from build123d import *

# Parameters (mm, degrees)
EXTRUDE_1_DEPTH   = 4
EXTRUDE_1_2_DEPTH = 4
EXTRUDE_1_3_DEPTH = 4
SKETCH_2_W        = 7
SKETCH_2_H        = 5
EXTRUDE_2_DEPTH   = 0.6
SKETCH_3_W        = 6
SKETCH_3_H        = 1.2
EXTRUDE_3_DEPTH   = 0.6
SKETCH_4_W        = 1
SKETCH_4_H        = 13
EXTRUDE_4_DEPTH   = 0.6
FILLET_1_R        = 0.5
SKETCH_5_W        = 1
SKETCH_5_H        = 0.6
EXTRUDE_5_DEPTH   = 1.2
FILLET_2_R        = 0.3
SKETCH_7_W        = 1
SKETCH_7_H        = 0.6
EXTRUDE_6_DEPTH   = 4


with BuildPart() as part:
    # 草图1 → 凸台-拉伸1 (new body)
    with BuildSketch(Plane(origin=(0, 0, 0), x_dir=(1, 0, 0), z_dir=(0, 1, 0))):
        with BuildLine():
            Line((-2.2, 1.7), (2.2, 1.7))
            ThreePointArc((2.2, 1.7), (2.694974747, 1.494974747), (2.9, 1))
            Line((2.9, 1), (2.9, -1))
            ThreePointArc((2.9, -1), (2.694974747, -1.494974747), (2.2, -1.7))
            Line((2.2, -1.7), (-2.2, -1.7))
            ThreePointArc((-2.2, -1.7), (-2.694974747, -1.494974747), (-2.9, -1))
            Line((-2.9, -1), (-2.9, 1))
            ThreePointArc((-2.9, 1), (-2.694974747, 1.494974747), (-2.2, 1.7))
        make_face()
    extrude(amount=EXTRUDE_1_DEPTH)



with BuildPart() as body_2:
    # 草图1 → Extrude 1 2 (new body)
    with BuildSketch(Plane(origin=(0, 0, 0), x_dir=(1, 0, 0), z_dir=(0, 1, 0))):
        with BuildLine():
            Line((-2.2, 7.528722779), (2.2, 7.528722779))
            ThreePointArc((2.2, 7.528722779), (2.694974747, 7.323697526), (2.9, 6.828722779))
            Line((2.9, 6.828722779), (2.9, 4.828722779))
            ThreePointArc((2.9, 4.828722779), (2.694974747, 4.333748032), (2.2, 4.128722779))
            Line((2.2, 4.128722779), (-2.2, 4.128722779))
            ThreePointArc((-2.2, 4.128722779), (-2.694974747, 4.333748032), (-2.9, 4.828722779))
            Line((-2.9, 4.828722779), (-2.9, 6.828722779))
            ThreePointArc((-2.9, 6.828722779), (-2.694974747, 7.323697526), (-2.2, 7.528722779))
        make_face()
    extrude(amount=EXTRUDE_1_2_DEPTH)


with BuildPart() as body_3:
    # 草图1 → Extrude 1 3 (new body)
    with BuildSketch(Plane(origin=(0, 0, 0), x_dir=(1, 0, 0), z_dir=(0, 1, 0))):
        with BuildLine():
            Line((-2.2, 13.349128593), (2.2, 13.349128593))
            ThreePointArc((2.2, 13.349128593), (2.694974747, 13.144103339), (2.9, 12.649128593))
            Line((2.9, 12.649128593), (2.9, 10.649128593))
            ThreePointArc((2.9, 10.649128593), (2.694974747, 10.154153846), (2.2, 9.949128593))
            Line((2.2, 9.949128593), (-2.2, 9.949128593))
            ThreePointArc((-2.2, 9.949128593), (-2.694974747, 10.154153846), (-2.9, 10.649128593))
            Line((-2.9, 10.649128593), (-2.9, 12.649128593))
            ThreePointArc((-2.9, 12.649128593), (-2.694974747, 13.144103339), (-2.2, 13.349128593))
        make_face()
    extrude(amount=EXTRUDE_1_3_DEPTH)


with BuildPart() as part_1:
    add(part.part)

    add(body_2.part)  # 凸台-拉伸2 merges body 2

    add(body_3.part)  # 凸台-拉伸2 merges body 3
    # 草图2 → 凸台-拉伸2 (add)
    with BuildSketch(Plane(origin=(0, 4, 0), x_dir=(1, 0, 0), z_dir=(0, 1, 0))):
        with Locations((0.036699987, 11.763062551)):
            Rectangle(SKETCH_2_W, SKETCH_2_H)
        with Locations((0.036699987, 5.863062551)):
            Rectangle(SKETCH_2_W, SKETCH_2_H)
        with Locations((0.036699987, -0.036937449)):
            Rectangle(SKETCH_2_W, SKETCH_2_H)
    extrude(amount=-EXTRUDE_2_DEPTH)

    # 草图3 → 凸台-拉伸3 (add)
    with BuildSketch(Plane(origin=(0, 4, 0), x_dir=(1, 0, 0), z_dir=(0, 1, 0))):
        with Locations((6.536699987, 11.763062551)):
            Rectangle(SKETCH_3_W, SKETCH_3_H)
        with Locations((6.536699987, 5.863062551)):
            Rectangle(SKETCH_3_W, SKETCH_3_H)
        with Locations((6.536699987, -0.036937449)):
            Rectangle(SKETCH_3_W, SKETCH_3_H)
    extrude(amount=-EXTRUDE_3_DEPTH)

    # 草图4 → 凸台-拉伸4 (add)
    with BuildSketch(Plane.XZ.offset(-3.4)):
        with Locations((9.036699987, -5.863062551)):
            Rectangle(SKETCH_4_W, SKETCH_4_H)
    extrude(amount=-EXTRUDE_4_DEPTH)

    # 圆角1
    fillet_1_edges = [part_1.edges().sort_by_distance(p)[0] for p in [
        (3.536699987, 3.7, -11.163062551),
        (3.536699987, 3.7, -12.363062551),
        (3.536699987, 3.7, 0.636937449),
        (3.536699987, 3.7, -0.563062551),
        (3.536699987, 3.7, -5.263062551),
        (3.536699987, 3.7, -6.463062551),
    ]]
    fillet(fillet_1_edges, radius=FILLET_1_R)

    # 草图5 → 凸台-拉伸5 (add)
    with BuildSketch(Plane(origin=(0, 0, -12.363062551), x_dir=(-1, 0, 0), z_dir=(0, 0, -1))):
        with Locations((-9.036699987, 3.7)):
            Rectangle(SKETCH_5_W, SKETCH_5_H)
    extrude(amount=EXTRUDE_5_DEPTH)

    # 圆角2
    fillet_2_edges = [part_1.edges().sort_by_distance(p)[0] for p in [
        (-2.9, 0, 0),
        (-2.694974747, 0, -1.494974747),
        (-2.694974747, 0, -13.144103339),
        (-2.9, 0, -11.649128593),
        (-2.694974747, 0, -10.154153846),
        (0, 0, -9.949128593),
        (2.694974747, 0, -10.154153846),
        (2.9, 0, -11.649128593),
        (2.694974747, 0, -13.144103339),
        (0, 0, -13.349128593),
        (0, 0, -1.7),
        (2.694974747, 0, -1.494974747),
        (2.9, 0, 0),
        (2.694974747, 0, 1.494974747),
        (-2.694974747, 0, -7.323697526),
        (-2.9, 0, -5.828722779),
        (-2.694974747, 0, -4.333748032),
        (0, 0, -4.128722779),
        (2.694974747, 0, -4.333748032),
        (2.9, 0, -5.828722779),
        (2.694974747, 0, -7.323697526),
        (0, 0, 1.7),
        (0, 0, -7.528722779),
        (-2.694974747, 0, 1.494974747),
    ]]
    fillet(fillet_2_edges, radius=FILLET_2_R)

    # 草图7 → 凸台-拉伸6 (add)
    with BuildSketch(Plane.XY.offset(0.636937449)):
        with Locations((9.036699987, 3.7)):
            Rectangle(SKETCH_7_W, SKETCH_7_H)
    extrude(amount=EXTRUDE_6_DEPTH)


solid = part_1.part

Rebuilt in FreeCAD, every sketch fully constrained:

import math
import FreeCAD as App
import Part
import Sketcher
Q = App.Units.Quantity


def edges_at(feature, points):
    """Names of the edges that pass closest to the given points."""
    edges = feature.Shape.Edges
    near = lambda p: min(range(len(edges)), key=lambda i: edges[i].distToShape(Part.Vertex(*p))[0])
    return sorted({f"Edge{near(p) + 1}" for p in points})


def add_polygon(sketch, points):
    """Adds a closed chain of lines whose ends are joined by coincident constraints."""
    first, n = sketch.GeometryCount, len(points)
    for a, b in zip(points, points[1:] + points[:1]):
        sketch.addGeometry(Part.LineSegment(App.Vector(*a, 0), App.Vector(*b, 0)), False)
    for i in range(n):
        sketch.addConstraint(Sketcher.Constraint("Coincident", first + i, 2, first + (i + 1) % n, 1))

doc = App.newDocument("Part")
body = doc.addObject("PartDesign::Body", "Body")

# Sketch on XZ plane
sketch1 = body.newObject("Sketcher::SketchObject", "Sketch")
sketch1.AttachmentSupport = (doc.getObject("XZ_Plane"), [""])
sketch1.MapMode = "FlatFace"
sketch1.addGeometry([
    Part.LineSegment(App.Vector(2.2, -1.7, 0), App.Vector(-2.2, -1.7, 0)),  # 0
    Part.ArcOfCircle(Part.Circle(App.Vector(-2.2, -1, 0), App.Vector(0, 0, 1), 0.7), math.radians(180), math.radians(270)),  # 1
    Part.LineSegment(App.Vector(-2.9, -1, 0), App.Vector(-2.9, 1, 0)),  # 2
    Part.ArcOfCircle(Part.Circle(App.Vector(-2.2, 1, 0), App.Vector(0, 0, 1), 0.7), math.radians(90), math.radians(180)),  # 3
    Part.LineSegment(App.Vector(-2.2, 1.7, 0), App.Vector(2.2, 1.7, 0)),  # 4
    Part.ArcOfCircle(Part.Circle(App.Vector(2.2, 1, 0), App.Vector(0, 0, 1), 0.7), math.radians(0), math.radians(90)),  # 5
    Part.LineSegment(App.Vector(2.9, 1, 0), App.Vector(2.9, -1, 0)),  # 6
    Part.ArcOfCircle(Part.Circle(App.Vector(2.2, -1, 0), App.Vector(0, 0, 1), 0.7), math.radians(-90), math.radians(0)),  # 7
], False)
sketch1.addConstraint([
    Sketcher.Constraint("Tangent", 0, 2, 1, 2),
    Sketcher.Constraint("Tangent", 1, 1, 2, 1),
    Sketcher.Constraint("Tangent", 2, 2, 3, 2),
    Sketcher.Constraint("Tangent", 3, 1, 4, 1),
    Sketcher.Constraint("Tangent", 4, 2, 5, 2),
    Sketcher.Constraint("Tangent", 5, 1, 6, 1),
    Sketcher.Constraint("Tangent", 6, 2, 7, 2),
    Sketcher.Constraint("Tangent", 7, 1, 0, 1),
    Sketcher.Constraint("Horizontal", 0),
    Sketcher.Constraint("Vertical", 2),
    Sketcher.Constraint("Horizontal", 4),
    Sketcher.Constraint("Vertical", 6),
    Sketcher.Constraint("Equal", 1, 3),
    Sketcher.Constraint("Equal", 3, 5),
    Sketcher.Constraint("Equal", 5, 7),
    Sketcher.Constraint("Symmetric", 1, 3, 5, 3, -1, 1),
    Sketcher.Constraint("Radius", 1, Q("0.7 mm")),
    Sketcher.Constraint("DistanceY", 2, 1, 2, 2, Q("2 mm")),
    Sketcher.Constraint("DistanceX", 0, 2, 0, 1, Q("4.4 mm")),
])
pad1 = body.newObject("PartDesign::Pad", "Pad")
pad1.Profile = sketch1
pad1.Length = 4
pad1.Reversed = True
body2 = doc.addObject("PartDesign::Body", "Body001")

# Sketch on XZ plane
sketch2 = body2.newObject("Sketcher::SketchObject", "Sketch001")
sketch2.AttachmentSupport = (doc.getObject("XZ_Plane001"), [""])
sketch2.MapMode = "FlatFace"
sketch2.addGeometry([
    Part.LineSegment(App.Vector(2.2, -7.5, 0), App.Vector(-2.2, -7.5, 0)),  # 0
    Part.ArcOfCircle(Part.Circle(App.Vector(-2.2, -6.8, 0), App.Vector(0, 0, 1), 0.7), math.radians(180), math.radians(270)),  # 1
    Part.LineSegment(App.Vector(-2.9, -6.8, 0), App.Vector(-2.9, -4.8, 0)),  # 2
    Part.ArcOfCircle(Part.Circle(App.Vector(-2.2, -4.8, 0), App.Vector(0, 0, 1), 0.7), math.radians(90), math.radians(180)),  # 3
    Part.LineSegment(App.Vector(-2.2, -4.1, 0), App.Vector(2.2, -4.1, 0)),  # 4
    Part.ArcOfCircle(Part.Circle(App.Vector(2.2, -4.8, 0), App.Vector(0, 0, 1), 0.7), math.radians(0), math.radians(90)),  # 5
    Part.LineSegment(App.Vector(2.9, -4.8, 0), App.Vector(2.9, -6.8, 0)),  # 6
    Part.ArcOfCircle(Part.Circle(App.Vector(2.2, -6.8, 0), App.Vector(0, 0, 1), 0.7), math.radians(-90), math.radians(0)),  # 7
], False)
sketch2.addConstraint([
    Sketcher.Constraint("Tangent", 0, 2, 1, 2),
    Sketcher.Constraint("Tangent", 1, 1, 2, 1),
    Sketcher.Constraint("Tangent", 2, 2, 3, 2),
    Sketcher.Constraint("Tangent", 3, 1, 4, 1),
    Sketcher.Constraint("Tangent", 4, 2, 5, 2),
    Sketcher.Constraint("Tangent", 5, 1, 6, 1),
    Sketcher.Constraint("Tangent", 6, 2, 7, 2),
    Sketcher.Constraint("Tangent", 7, 1, 0, 1),
    Sketcher.Constraint("Horizontal", 0),
    Sketcher.Constraint("Vertical", 2),
    Sketcher.Constraint("Horizontal", 4),
    Sketcher.Constraint("Vertical", 6),
    Sketcher.Constraint("Equal", 1, 3),
    Sketcher.Constraint("Equal", 3, 5),
    Sketcher.Constraint("Equal", 5, 7),
    Sketcher.Constraint("Radius", 1, Q("0.7 mm")),
    Sketcher.Constraint("DistanceY", 2, 1, 2, 2, Q("2 mm")),
    Sketcher.Constraint("DistanceX", 0, 2, 0, 1, Q("4.4 mm")),
    Sketcher.Constraint("DistanceX", 1, 3, -1, 1, Q("2.2 mm")),
    Sketcher.Constraint("DistanceY", 1, 3, -1, 1, Q("6.828723 mm")),
])
pad2 = body2.newObject("PartDesign::Pad", "Pad001")
pad2.Profile = sketch2
pad2.Length = 4
pad2.Reversed = True
body3 = doc.addObject("PartDesign::Body", "Body002")

# Sketch on XZ plane
sketch3 = body3.newObject("Sketcher::SketchObject", "Sketch002")
sketch3.AttachmentSupport = (doc.getObject("XZ_Plane002"), [""])
sketch3.MapMode = "FlatFace"
sketch3.addGeometry([
    Part.LineSegment(App.Vector(2.2, -13.3, 0), App.Vector(-2.2, -13.3, 0)),  # 0
    Part.ArcOfCircle(Part.Circle(App.Vector(-2.2, -12.6, 0), App.Vector(0, 0, 1), 0.7), math.radians(-180), math.radians(-90)),  # 1
    Part.LineSegment(App.Vector(-2.9, -12.6, 0), App.Vector(-2.9, -10.6, 0)),  # 2
    Part.ArcOfCircle(Part.Circle(App.Vector(-2.2, -10.6, 0), App.Vector(0, 0, 1), 0.7), math.radians(90), math.radians(180)),  # 3
    Part.LineSegment(App.Vector(-2.2, -9.9, 0), App.Vector(2.2, -9.9, 0)),  # 4
    Part.ArcOfCircle(Part.Circle(App.Vector(2.2, -10.6, 0), App.Vector(0, 0, 1), 0.7), math.radians(0), math.radians(90)),  # 5
    Part.LineSegment(App.Vector(2.9, -10.6, 0), App.Vector(2.9, -12.6, 0)),  # 6
    Part.ArcOfCircle(Part.Circle(App.Vector(2.2, -12.6, 0), App.Vector(0, 0, 1), 0.7), math.radians(-90), math.radians(0)),  # 7
], False)
sketch3.addConstraint([
    Sketcher.Constraint("Tangent", 0, 2, 1, 2),
    Sketcher.Constraint("Tangent", 1, 1, 2, 1),
    Sketcher.Constraint("Tangent", 2, 2, 3, 2),
    Sketcher.Constraint("Tangent", 3, 1, 4, 1),
    Sketcher.Constraint("Tangent", 4, 2, 5, 2),
    Sketcher.Constraint("Tangent", 5, 1, 6, 1),
    Sketcher.Constraint("Tangent", 6, 2, 7, 2),
    Sketcher.Constraint("Tangent", 7, 1, 0, 1),
    Sketcher.Constraint("Horizontal", 0),
    Sketcher.Constraint("Vertical", 2),
    Sketcher.Constraint("Horizontal", 4),
    Sketcher.Constraint("Vertical", 6),
    Sketcher.Constraint("Equal", 1, 3),
    Sketcher.Constraint("Equal", 3, 5),
    Sketcher.Constraint("Equal", 5, 7),
    Sketcher.Constraint("Radius", 1, Q("0.7 mm")),
    Sketcher.Constraint("DistanceY", 2, 1, 2, 2, Q("2 mm")),
    Sketcher.Constraint("DistanceX", 0, 2, 0, 1, Q("4.4 mm")),
    Sketcher.Constraint("DistanceX", 1, 3, -1, 1, Q("2.2 mm")),
    Sketcher.Constraint("DistanceY", 1, 3, -1, 1, Q("12.649129 mm")),
])
pad3 = body3.newObject("PartDesign::Pad", "Pad002")
pad3.Profile = sketch3
pad3.Length = 4
pad3.Reversed = True
body.AllowCompound = True
doc.recompute()

boolean = body.newObject("PartDesign::Boolean", "Boolean")
boolean.Type = "Fuse"
boolean.addObjects([body2])
doc.recompute()

boolean2 = body.newObject("PartDesign::Boolean", "Boolean001")
boolean2.Type = "Fuse"
boolean2.addObjects([body3])

# Sketch on XZ plane
sketch4 = body.newObject("Sketcher::SketchObject", "Sketch003")
sketch4.AttachmentSupport = (doc.getObject("XZ_Plane"), [""])
sketch4.MapMode = "FlatFace"
sketch4.AttachmentOffset = App.Placement(App.Vector(0, 0, -4), App.Rotation())
add_polygon(sketch4, [(-3, -14), (-3, -9), (4, -9), (4, -14)])  # lines 0-3
add_polygon(sketch4, [(-3, -8), (-3, -3), (4, -3), (4, -8)])  # lines 4-7
add_polygon(sketch4, [(-3, -2), (-3, 3), (4, 3), (4, -2)])  # lines 8-11
sketch4.addConstraint([
    Sketcher.Constraint("Vertical", 0),
    Sketcher.Constraint("Horizontal", 1),
    Sketcher.Constraint("Vertical", 2),
    Sketcher.Constraint("Horizontal", 3),
    Sketcher.Constraint("Vertical", 4),
    Sketcher.Constraint("Horizontal", 5),
    Sketcher.Constraint("Vertical", 6),
    Sketcher.Constraint("Horizontal", 7),
    Sketcher.Constraint("Vertical", 8),
    Sketcher.Constraint("Horizontal", 9),
    Sketcher.Constraint("Vertical", 10),
    Sketcher.Constraint("Horizontal", 11),
    Sketcher.Constraint("Vertical", 3, 2, 4, 2),
    Sketcher.Constraint("Vertical", 2, 2, 5, 2),
    Sketcher.Constraint("Vertical", 7, 2, 8, 2),
    Sketcher.Constraint("Vertical", 6, 2, 9, 2),
    Sketcher.Constraint("Equal", 2, 4),
    Sketcher.Constraint("Equal", 6, 8),
    Sketcher.Constraint("DistanceX", 1, 1, 1, 2, Q("7 mm")),
    Sketcher.Constraint("DistanceY", 0, 1, 0, 2, Q("5 mm")),
    Sketcher.Constraint("DistanceY", 0, 2, 4, 2, Q("5.9 mm")),
    Sketcher.Constraint("DistanceY", 4, 2, 8, 2, Q("5.9 mm")),
    Sketcher.Constraint("DistanceX", 0, 2, -1, 1, Q("3.4633 mm")),
    Sketcher.Constraint("DistanceY", 0, 2, -1, 1, Q("9.263063 mm")),
])
pad4 = body.newObject("PartDesign::Pad", "Pad003")
pad4.Profile = sketch4
pad4.Length = 0.6

# Sketch on XZ plane
sketch5 = body.newObject("Sketcher::SketchObject", "Sketch004")
sketch5.AttachmentSupport = (doc.getObject("XZ_Plane"), [""])
sketch5.MapMode = "FlatFace"
sketch5.AttachmentOffset = App.Placement(App.Vector(0, 0, -4), App.Rotation())
add_polygon(sketch5, [(3.5, -12.4), (3.5, -11.2), (9.5, -11.2), (9.5, -12.4)])  # lines 0-3
add_polygon(sketch5, [(3.5, -6.5), (3.5, -5.3), (9.5, -5.3), (9.5, -6.5)])  # lines 4-7
add_polygon(sketch5, [(3.5, -0.6), (3.5, 0.6), (9.5, 0.6), (9.5, -0.6)])  # lines 8-11
sketch5.addConstraint([
    Sketcher.Constraint("Vertical", 0),
    Sketcher.Constraint("Horizontal", 1),
    Sketcher.Constraint("Vertical", 2),
    Sketcher.Constraint("Horizontal", 3),
    Sketcher.Constraint("Vertical", 4),
    Sketcher.Constraint("Horizontal", 5),
    Sketcher.Constraint("Vertical", 6),
    Sketcher.Constraint("Horizontal", 7),
    Sketcher.Constraint("Vertical", 8),
    Sketcher.Constraint("Horizontal", 9),
    Sketcher.Constraint("Vertical", 10),
    Sketcher.Constraint("Horizontal", 11),
    Sketcher.Constraint("Vertical", 3, 2, 4, 2),
    Sketcher.Constraint("Vertical", 2, 2, 5, 2),
    Sketcher.Constraint("Vertical", 7, 2, 8, 2),
    Sketcher.Constraint("Vertical", 6, 2, 9, 2),
    Sketcher.Constraint("Equal", 2, 4),
    Sketcher.Constraint("Equal", 6, 8),
    Sketcher.Constraint("DistanceX", 1, 1, 1, 2, Q("6 mm")),
    Sketcher.Constraint("DistanceY", 0, 1, 0, 2, Q("1.2 mm")),
    Sketcher.Constraint("DistanceY", 0, 2, 4, 2, Q("5.9 mm")),
    Sketcher.Constraint("DistanceY", 4, 2, 8, 2, Q("5.9 mm")),
    Sketcher.Constraint("DistanceX", -1, 1, 0, 2, Q("3.5367 mm")),
    Sketcher.Constraint("DistanceY", 0, 2, -1, 1, Q("11.163063 mm")),
])
pad5 = body.newObject("PartDesign::Pad", "Pad004")
pad5.Profile = sketch5
pad5.Length = 0.6

# Sketch on XZ plane
sketch6 = body.newObject("Sketcher::SketchObject", "Sketch005")
sketch6.AttachmentSupport = (doc.getObject("XZ_Plane"), [""])
sketch6.MapMode = "FlatFace"
sketch6.AttachmentOffset = App.Placement(App.Vector(0, 0, -3.4), App.Rotation())
add_polygon(sketch6, [(8.5, 0.6), (8.5, -12.4), (9.5, -12.4), (9.5, 0.6)])  # lines 0-3
sketch6.addConstraint([
    Sketcher.Constraint("Vertical", 0),
    Sketcher.Constraint("Horizontal", 1),
    Sketcher.Constraint("Vertical", 2),
    Sketcher.Constraint("Horizontal", 3),
    Sketcher.Constraint("DistanceX", 1, 1, 1, 2, Q("1 mm")),
    Sketcher.Constraint("DistanceY", 0, 2, 0, 1, Q("13 mm")),
    Sketcher.Constraint("DistanceX", -1, 1, 0, 2, Q("8.5367 mm")),
    Sketcher.Constraint("DistanceY", 0, 2, -1, 1, Q("12.363063 mm")),
])
pad6 = body.newObject("PartDesign::Pad", "Pad005")
pad6.Profile = sketch6
pad6.Length = 0.6
pad6.Reversed = True
doc.recompute()

fillet = body.newObject("PartDesign::Fillet", "Fillet")
fillet.Base = (pad6, edges_at(pad6, [
    (3.537, 3.7, -11.163),
    (3.537, 3.7, -12.363),
    (3.537, 3.7, 0.637),
    (3.537, 3.7, -0.563),
    (3.537, 3.7, -5.263),
    (3.537, 3.7, -6.463),
]))
fillet.Radius = 0.5

# Sketch on XY plane
sketch7 = body.newObject("Sketcher::SketchObject", "Sketch006")
sketch7.AttachmentSupport = (doc.getObject("XY_Plane"), [""])
sketch7.MapMode = "FlatFace"
sketch7.AttachmentOffset = App.Placement(App.Vector(0, 0, -12.363063), App.Rotation())
add_polygon(sketch7, [(9.5, 4), (9.5, 3.4), (8.5, 3.4), (8.5, 4)])  # lines 0-3
sketch7.addConstraint([
    Sketcher.Constraint("Vertical", 0),
    Sketcher.Constraint("Horizontal", 1),
    Sketcher.Constraint("Vertical", 2),
    Sketcher.Constraint("Horizontal", 3),
    Sketcher.Constraint("DistanceX", 1, 2, 1, 1, Q("1 mm")),
    Sketcher.Constraint("DistanceY", 0, 2, 0, 1, Q("0.6 mm")),
    Sketcher.Constraint("DistanceY", -1, 1, 2, 2, Q("4 mm")),
    Sketcher.Constraint("DistanceX", -1, 1, 0, 2, Q("9.5367 mm")),
])
pad7 = body.newObject("PartDesign::Pad", "Pad006")
pad7.Profile = sketch7
pad7.Length = 1.2
pad7.Reversed = True
doc.recompute()

fillet2 = body.newObject("PartDesign::Fillet", "Fillet001")
fillet2.Base = (pad7, edges_at(pad7, [
    (-2.9, 0, 0),
    (-2.695, 0, -1.495),
    (-2.695, 0, -13.144),
    (-2.9, 0, -11.649),
    (-2.695, 0, -10.154),
    (0, 0, -9.949),
    (2.695, 0, -10.154),
    (2.9, 0, -11.649),
    (2.695, 0, -13.144),
    (0, 0, -13.349),
    (0, 0, -1.7),
    (2.695, 0, -1.495),
    (2.9, 0, 0),
    (2.695, 0, 1.495),
    (-2.695, 0, -7.324),
    (-2.9, 0, -5.829),
    (-2.695, 0, -4.334),
    (0, 0, -4.129),
    (2.695, 0, -4.334),
    (2.9, 0, -5.829),
    (2.695, 0, -7.324),
    (0, 0, 1.7),
    (0, 0, -7.529),
    (-2.695, 0, 1.495),
]))
fillet2.Radius = 0.3

# Sketch on XY plane
sketch8 = body.newObject("Sketcher::SketchObject", "Sketch007")
sketch8.AttachmentSupport = (doc.getObject("XY_Plane"), [""])
sketch8.MapMode = "FlatFace"
sketch8.AttachmentOffset = App.Placement(App.Vector(0, 0, 0.636937), App.Rotation())
add_polygon(sketch8, [(8.5, 4), (8.5, 3.4), (9.5, 3.4), (9.5, 4)])  # lines 0-3
sketch8.addConstraint([
    Sketcher.Constraint("Vertical", 0),
    Sketcher.Constraint("Horizontal", 1),
    Sketcher.Constraint("Vertical", 2),
    Sketcher.Constraint("Horizontal", 3),
    Sketcher.Constraint("DistanceX", 1, 1, 1, 2, Q("1 mm")),
    Sketcher.Constraint("DistanceY", 0, 2, 0, 1, Q("0.6 mm")),
    Sketcher.Constraint("DistanceY", -1, 1, 2, 2, Q("4 mm")),
    Sketcher.Constraint("DistanceX", -1, 1, 0, 2, Q("8.5367 mm")),
])
pad8 = body.newObject("PartDesign::Pad", "Pad007")
pad8.Profile = sketch8
pad8.Length = 4

doc.recompute()
